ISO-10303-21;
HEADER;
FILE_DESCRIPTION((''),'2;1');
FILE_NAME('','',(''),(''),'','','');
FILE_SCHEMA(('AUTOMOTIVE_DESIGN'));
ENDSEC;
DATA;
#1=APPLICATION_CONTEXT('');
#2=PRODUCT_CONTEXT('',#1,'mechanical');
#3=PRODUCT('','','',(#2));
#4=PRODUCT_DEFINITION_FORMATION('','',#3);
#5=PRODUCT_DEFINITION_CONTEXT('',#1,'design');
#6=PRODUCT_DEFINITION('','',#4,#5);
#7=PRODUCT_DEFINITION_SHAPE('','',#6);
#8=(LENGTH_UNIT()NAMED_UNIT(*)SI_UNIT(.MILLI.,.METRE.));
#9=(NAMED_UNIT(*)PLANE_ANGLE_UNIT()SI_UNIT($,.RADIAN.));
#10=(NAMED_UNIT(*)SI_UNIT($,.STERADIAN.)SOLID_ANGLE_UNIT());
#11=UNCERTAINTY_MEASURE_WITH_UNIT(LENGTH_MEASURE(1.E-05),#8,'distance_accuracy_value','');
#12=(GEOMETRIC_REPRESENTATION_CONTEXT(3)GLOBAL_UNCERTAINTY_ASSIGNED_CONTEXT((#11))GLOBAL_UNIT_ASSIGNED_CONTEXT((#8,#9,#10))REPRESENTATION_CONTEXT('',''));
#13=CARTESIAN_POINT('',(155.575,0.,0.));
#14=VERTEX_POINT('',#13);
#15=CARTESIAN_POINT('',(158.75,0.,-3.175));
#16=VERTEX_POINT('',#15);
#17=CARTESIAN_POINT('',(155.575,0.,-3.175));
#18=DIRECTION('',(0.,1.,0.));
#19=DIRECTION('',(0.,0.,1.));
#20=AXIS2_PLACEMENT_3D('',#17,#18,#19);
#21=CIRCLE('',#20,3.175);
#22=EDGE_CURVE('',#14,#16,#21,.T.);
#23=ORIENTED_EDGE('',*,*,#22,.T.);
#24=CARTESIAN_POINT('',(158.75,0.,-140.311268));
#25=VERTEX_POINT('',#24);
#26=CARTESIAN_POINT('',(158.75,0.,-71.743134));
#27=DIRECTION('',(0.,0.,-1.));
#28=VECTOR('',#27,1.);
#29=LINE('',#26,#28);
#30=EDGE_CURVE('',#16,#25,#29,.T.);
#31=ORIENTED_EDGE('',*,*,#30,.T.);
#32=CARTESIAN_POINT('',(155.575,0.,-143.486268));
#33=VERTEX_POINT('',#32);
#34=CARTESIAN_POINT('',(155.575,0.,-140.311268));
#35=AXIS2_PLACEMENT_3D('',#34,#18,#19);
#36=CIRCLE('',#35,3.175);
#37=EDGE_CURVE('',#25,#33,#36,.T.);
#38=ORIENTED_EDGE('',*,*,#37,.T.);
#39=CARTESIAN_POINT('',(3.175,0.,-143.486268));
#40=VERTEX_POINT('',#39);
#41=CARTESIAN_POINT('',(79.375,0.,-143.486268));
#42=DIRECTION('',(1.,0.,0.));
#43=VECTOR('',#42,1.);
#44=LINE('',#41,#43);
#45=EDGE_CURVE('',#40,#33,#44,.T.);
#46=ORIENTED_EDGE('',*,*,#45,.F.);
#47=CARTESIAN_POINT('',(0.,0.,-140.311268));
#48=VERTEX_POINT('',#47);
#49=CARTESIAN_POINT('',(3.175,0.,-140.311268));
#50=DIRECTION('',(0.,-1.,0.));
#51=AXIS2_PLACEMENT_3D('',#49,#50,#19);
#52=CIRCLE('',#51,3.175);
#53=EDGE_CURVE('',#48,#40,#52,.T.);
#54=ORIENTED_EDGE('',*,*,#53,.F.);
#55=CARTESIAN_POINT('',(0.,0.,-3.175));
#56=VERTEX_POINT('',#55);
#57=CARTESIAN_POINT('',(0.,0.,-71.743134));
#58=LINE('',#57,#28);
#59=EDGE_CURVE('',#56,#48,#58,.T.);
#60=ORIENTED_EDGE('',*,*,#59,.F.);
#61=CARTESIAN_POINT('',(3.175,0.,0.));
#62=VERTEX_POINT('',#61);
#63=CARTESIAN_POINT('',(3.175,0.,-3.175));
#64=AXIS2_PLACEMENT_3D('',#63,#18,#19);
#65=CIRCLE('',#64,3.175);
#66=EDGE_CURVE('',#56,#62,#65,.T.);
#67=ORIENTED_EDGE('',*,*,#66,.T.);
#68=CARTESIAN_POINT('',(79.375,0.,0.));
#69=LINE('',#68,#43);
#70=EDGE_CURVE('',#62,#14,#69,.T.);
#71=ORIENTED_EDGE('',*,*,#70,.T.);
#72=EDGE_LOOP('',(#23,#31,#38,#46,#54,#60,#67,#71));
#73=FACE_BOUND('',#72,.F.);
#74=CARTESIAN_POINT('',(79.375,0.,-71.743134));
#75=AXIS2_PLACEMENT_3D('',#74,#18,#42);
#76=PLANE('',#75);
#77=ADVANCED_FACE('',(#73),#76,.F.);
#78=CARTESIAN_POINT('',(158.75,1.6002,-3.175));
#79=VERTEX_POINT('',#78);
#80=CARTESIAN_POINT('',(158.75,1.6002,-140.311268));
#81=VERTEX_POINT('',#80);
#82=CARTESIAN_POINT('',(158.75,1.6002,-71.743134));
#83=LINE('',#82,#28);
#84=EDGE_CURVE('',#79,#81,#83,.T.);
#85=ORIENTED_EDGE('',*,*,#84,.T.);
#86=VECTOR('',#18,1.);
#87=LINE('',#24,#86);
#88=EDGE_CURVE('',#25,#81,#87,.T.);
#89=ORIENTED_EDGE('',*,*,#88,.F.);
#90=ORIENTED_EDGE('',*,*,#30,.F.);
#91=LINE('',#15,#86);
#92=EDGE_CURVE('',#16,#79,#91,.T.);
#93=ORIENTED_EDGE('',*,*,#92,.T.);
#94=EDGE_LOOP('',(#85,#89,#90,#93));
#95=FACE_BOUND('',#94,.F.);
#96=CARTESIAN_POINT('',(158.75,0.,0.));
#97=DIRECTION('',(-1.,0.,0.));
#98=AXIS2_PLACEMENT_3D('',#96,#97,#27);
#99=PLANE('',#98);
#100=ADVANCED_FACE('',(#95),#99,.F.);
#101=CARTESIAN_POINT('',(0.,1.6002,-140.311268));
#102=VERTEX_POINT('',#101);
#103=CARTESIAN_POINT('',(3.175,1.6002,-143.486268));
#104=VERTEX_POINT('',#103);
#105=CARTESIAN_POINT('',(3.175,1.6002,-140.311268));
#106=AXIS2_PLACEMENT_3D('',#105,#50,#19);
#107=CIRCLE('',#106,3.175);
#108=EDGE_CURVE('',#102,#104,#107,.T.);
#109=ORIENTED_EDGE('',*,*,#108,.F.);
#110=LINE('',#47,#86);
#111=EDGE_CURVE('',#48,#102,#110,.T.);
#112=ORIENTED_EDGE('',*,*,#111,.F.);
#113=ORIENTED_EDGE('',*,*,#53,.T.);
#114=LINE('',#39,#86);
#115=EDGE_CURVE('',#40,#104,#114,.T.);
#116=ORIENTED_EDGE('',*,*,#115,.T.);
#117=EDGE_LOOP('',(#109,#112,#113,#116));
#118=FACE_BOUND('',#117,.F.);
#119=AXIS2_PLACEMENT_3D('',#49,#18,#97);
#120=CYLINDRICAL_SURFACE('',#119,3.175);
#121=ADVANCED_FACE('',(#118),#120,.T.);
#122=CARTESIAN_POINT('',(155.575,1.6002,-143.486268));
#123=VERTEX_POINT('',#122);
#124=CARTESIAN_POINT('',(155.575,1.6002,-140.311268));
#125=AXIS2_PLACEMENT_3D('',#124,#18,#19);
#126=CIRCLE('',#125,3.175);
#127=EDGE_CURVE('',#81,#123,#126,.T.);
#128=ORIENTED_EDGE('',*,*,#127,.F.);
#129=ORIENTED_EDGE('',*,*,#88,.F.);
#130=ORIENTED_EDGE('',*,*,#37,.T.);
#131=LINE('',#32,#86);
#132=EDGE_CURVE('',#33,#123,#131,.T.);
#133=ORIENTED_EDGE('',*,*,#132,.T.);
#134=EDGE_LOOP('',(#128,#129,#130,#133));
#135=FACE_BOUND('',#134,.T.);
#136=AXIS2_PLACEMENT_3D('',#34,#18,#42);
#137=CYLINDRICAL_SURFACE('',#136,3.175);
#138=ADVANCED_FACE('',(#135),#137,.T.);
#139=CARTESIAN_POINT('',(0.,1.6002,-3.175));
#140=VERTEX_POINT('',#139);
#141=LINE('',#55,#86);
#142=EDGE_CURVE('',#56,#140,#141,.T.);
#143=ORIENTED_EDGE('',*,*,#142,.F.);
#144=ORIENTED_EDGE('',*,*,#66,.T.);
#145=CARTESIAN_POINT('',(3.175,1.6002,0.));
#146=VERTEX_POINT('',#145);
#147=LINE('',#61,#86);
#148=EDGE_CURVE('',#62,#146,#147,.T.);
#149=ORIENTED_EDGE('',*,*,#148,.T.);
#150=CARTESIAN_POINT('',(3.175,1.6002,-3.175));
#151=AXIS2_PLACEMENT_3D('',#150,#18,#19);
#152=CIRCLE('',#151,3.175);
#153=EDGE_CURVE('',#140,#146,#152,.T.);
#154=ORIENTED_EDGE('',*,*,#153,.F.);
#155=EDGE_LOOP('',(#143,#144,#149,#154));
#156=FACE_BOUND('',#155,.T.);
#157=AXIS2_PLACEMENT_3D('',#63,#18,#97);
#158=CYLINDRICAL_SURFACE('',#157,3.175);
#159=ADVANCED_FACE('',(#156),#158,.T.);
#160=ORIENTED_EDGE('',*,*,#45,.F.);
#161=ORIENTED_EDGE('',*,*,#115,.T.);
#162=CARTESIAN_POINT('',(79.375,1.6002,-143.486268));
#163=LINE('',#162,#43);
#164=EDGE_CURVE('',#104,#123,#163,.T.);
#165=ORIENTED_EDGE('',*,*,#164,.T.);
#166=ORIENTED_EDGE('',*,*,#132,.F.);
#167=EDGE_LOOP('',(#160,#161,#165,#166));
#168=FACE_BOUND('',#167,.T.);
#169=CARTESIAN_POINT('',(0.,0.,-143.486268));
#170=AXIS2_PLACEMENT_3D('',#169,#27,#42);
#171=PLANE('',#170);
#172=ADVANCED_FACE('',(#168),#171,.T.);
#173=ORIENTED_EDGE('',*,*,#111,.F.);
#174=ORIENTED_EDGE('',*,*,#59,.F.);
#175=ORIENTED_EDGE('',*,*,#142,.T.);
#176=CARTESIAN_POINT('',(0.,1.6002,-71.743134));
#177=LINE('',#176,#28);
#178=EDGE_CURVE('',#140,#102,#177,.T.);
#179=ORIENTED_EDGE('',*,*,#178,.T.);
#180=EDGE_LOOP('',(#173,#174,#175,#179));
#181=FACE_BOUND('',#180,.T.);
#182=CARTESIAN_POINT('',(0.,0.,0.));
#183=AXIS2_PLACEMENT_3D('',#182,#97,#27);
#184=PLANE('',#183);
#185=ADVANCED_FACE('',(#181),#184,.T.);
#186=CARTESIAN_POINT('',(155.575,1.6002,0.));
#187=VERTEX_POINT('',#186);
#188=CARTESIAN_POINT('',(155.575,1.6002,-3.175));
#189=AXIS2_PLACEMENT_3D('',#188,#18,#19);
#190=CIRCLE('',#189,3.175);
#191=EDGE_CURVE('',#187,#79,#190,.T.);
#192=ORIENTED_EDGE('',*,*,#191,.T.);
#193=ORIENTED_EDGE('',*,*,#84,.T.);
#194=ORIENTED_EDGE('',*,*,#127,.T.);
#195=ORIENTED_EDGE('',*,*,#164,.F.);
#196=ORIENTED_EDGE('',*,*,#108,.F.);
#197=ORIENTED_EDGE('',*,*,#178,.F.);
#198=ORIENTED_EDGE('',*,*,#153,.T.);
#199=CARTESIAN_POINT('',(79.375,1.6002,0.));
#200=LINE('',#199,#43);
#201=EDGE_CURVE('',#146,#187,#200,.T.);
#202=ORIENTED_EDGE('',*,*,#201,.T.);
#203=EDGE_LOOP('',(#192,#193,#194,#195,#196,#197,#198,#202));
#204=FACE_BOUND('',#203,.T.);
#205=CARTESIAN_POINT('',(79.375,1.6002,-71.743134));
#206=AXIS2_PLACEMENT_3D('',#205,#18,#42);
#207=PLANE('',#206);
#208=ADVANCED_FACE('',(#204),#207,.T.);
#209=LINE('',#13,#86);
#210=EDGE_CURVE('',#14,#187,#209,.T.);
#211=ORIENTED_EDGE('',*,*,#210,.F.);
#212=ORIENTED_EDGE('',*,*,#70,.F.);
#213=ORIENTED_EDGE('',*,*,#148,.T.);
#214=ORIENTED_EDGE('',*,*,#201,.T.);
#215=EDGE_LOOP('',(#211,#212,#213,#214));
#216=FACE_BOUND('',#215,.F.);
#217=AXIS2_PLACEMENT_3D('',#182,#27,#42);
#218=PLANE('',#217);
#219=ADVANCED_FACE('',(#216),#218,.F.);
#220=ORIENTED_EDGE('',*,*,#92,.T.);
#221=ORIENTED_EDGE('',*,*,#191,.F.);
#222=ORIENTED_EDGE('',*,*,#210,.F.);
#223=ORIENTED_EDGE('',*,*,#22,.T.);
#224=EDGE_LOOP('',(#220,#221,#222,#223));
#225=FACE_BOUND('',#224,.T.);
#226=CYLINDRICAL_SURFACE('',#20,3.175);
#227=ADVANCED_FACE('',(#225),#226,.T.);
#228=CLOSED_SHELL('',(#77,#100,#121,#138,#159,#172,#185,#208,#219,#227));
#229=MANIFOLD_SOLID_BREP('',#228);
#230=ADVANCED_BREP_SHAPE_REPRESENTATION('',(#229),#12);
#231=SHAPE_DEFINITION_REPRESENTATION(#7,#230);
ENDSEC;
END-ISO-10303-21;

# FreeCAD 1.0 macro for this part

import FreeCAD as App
import Part
import Sketcher
from FreeCAD import Vector
Q = App.Units.Quantity


def edges_at(feature, points):
    """Names of the edges that pass closest to the given points."""
    edges = feature.Shape.Edges
    near = lambda p: min(range(len(edges)), key=lambda i: edges[i].distToShape(Part.Vertex(*p))[0])
    return sorted({f"Edge{near(p) + 1}" for p in points})

doc = App.newDocument("Part")
params = doc.addObject("Spreadsheet::Sheet", "Params")
for row, (alias, value) in enumerate([
    ("sketch1_width", "6.25 in"),
    ("pad1_length", "0.063 in"),
    ("fillet_radius", "0.125 in"),
], start=1):
    params.set(f"A{row}", alias)
    params.set(f"B{row}", "=" + value)
    params.setAlias(f"B{row}", alias)

body = doc.addObject("PartDesign::Body", "Body")

sketch1 = doc.addObject("Sketcher::SketchObject", "Sketch")
body.addObject(sketch1)
sketch1.AttachmentSupport = (doc.XZ_Plane, [""])
sketch1.MapMode = "FlatFace"
sketch1.addGeometry([
    Part.LineSegment(Vector(0, -143, 0), Vector(0, 0, 0)),
    Part.LineSegment(Vector(0, 0, 0), Vector(159, 0, 0)),
    Part.LineSegment(Vector(159, 0, 0), Vector(159, -143, 0)),
    Part.LineSegment(Vector(159, -143, 0), Vector(0, -143, 0)),
], False)
sketch1.addConstraint([
    Sketcher.Constraint("Coincident", 0, 2, 1, 1),
    Sketcher.Constraint("Coincident", 1, 2, 2, 1),
    Sketcher.Constraint("Coincident", 2, 2, 3, 1),
    Sketcher.Constraint("Coincident", 3, 2, 0, 1),
    Sketcher.Constraint("Vertical", 0),
    Sketcher.Constraint("Horizontal", 1),
    Sketcher.Constraint("Vertical", 2),
    Sketcher.Constraint("Horizontal", 3),
    Sketcher.Constraint("Coincident", 0, 2, -1, 1),
    Sketcher.Constraint("DistanceX", 1, 1, 1, 2, Q("6.25 in")),
    Sketcher.Constraint("DistanceY", 0, 1, 0, 2, Q("143.486268 mm")),
])
sketch1.setExpression("Constraints[9]", "Params.sketch1_width")
pad1 = doc.addObject("PartDesign::Pad", "Pad")
body.addObject(pad1)
pad1.Profile = sketch1
pad1.setExpression("Length", "Params.pad1_length")
pad1.Reversed = True
doc.recompute()

fillet = doc.addObject("PartDesign::Fillet", "Fillet")
body.addObject(fillet)
fillet.Base = (pad1, edges_at(pad1, [
    (158.75, 0.8, 0),
    (0, 0.8, 0),
    (0, 0.8, -143.486),
    (158.75, 0.8, -143.486),
]))
fillet.setExpression("Radius", "Params.fillet_radius")

doc.recompute()
